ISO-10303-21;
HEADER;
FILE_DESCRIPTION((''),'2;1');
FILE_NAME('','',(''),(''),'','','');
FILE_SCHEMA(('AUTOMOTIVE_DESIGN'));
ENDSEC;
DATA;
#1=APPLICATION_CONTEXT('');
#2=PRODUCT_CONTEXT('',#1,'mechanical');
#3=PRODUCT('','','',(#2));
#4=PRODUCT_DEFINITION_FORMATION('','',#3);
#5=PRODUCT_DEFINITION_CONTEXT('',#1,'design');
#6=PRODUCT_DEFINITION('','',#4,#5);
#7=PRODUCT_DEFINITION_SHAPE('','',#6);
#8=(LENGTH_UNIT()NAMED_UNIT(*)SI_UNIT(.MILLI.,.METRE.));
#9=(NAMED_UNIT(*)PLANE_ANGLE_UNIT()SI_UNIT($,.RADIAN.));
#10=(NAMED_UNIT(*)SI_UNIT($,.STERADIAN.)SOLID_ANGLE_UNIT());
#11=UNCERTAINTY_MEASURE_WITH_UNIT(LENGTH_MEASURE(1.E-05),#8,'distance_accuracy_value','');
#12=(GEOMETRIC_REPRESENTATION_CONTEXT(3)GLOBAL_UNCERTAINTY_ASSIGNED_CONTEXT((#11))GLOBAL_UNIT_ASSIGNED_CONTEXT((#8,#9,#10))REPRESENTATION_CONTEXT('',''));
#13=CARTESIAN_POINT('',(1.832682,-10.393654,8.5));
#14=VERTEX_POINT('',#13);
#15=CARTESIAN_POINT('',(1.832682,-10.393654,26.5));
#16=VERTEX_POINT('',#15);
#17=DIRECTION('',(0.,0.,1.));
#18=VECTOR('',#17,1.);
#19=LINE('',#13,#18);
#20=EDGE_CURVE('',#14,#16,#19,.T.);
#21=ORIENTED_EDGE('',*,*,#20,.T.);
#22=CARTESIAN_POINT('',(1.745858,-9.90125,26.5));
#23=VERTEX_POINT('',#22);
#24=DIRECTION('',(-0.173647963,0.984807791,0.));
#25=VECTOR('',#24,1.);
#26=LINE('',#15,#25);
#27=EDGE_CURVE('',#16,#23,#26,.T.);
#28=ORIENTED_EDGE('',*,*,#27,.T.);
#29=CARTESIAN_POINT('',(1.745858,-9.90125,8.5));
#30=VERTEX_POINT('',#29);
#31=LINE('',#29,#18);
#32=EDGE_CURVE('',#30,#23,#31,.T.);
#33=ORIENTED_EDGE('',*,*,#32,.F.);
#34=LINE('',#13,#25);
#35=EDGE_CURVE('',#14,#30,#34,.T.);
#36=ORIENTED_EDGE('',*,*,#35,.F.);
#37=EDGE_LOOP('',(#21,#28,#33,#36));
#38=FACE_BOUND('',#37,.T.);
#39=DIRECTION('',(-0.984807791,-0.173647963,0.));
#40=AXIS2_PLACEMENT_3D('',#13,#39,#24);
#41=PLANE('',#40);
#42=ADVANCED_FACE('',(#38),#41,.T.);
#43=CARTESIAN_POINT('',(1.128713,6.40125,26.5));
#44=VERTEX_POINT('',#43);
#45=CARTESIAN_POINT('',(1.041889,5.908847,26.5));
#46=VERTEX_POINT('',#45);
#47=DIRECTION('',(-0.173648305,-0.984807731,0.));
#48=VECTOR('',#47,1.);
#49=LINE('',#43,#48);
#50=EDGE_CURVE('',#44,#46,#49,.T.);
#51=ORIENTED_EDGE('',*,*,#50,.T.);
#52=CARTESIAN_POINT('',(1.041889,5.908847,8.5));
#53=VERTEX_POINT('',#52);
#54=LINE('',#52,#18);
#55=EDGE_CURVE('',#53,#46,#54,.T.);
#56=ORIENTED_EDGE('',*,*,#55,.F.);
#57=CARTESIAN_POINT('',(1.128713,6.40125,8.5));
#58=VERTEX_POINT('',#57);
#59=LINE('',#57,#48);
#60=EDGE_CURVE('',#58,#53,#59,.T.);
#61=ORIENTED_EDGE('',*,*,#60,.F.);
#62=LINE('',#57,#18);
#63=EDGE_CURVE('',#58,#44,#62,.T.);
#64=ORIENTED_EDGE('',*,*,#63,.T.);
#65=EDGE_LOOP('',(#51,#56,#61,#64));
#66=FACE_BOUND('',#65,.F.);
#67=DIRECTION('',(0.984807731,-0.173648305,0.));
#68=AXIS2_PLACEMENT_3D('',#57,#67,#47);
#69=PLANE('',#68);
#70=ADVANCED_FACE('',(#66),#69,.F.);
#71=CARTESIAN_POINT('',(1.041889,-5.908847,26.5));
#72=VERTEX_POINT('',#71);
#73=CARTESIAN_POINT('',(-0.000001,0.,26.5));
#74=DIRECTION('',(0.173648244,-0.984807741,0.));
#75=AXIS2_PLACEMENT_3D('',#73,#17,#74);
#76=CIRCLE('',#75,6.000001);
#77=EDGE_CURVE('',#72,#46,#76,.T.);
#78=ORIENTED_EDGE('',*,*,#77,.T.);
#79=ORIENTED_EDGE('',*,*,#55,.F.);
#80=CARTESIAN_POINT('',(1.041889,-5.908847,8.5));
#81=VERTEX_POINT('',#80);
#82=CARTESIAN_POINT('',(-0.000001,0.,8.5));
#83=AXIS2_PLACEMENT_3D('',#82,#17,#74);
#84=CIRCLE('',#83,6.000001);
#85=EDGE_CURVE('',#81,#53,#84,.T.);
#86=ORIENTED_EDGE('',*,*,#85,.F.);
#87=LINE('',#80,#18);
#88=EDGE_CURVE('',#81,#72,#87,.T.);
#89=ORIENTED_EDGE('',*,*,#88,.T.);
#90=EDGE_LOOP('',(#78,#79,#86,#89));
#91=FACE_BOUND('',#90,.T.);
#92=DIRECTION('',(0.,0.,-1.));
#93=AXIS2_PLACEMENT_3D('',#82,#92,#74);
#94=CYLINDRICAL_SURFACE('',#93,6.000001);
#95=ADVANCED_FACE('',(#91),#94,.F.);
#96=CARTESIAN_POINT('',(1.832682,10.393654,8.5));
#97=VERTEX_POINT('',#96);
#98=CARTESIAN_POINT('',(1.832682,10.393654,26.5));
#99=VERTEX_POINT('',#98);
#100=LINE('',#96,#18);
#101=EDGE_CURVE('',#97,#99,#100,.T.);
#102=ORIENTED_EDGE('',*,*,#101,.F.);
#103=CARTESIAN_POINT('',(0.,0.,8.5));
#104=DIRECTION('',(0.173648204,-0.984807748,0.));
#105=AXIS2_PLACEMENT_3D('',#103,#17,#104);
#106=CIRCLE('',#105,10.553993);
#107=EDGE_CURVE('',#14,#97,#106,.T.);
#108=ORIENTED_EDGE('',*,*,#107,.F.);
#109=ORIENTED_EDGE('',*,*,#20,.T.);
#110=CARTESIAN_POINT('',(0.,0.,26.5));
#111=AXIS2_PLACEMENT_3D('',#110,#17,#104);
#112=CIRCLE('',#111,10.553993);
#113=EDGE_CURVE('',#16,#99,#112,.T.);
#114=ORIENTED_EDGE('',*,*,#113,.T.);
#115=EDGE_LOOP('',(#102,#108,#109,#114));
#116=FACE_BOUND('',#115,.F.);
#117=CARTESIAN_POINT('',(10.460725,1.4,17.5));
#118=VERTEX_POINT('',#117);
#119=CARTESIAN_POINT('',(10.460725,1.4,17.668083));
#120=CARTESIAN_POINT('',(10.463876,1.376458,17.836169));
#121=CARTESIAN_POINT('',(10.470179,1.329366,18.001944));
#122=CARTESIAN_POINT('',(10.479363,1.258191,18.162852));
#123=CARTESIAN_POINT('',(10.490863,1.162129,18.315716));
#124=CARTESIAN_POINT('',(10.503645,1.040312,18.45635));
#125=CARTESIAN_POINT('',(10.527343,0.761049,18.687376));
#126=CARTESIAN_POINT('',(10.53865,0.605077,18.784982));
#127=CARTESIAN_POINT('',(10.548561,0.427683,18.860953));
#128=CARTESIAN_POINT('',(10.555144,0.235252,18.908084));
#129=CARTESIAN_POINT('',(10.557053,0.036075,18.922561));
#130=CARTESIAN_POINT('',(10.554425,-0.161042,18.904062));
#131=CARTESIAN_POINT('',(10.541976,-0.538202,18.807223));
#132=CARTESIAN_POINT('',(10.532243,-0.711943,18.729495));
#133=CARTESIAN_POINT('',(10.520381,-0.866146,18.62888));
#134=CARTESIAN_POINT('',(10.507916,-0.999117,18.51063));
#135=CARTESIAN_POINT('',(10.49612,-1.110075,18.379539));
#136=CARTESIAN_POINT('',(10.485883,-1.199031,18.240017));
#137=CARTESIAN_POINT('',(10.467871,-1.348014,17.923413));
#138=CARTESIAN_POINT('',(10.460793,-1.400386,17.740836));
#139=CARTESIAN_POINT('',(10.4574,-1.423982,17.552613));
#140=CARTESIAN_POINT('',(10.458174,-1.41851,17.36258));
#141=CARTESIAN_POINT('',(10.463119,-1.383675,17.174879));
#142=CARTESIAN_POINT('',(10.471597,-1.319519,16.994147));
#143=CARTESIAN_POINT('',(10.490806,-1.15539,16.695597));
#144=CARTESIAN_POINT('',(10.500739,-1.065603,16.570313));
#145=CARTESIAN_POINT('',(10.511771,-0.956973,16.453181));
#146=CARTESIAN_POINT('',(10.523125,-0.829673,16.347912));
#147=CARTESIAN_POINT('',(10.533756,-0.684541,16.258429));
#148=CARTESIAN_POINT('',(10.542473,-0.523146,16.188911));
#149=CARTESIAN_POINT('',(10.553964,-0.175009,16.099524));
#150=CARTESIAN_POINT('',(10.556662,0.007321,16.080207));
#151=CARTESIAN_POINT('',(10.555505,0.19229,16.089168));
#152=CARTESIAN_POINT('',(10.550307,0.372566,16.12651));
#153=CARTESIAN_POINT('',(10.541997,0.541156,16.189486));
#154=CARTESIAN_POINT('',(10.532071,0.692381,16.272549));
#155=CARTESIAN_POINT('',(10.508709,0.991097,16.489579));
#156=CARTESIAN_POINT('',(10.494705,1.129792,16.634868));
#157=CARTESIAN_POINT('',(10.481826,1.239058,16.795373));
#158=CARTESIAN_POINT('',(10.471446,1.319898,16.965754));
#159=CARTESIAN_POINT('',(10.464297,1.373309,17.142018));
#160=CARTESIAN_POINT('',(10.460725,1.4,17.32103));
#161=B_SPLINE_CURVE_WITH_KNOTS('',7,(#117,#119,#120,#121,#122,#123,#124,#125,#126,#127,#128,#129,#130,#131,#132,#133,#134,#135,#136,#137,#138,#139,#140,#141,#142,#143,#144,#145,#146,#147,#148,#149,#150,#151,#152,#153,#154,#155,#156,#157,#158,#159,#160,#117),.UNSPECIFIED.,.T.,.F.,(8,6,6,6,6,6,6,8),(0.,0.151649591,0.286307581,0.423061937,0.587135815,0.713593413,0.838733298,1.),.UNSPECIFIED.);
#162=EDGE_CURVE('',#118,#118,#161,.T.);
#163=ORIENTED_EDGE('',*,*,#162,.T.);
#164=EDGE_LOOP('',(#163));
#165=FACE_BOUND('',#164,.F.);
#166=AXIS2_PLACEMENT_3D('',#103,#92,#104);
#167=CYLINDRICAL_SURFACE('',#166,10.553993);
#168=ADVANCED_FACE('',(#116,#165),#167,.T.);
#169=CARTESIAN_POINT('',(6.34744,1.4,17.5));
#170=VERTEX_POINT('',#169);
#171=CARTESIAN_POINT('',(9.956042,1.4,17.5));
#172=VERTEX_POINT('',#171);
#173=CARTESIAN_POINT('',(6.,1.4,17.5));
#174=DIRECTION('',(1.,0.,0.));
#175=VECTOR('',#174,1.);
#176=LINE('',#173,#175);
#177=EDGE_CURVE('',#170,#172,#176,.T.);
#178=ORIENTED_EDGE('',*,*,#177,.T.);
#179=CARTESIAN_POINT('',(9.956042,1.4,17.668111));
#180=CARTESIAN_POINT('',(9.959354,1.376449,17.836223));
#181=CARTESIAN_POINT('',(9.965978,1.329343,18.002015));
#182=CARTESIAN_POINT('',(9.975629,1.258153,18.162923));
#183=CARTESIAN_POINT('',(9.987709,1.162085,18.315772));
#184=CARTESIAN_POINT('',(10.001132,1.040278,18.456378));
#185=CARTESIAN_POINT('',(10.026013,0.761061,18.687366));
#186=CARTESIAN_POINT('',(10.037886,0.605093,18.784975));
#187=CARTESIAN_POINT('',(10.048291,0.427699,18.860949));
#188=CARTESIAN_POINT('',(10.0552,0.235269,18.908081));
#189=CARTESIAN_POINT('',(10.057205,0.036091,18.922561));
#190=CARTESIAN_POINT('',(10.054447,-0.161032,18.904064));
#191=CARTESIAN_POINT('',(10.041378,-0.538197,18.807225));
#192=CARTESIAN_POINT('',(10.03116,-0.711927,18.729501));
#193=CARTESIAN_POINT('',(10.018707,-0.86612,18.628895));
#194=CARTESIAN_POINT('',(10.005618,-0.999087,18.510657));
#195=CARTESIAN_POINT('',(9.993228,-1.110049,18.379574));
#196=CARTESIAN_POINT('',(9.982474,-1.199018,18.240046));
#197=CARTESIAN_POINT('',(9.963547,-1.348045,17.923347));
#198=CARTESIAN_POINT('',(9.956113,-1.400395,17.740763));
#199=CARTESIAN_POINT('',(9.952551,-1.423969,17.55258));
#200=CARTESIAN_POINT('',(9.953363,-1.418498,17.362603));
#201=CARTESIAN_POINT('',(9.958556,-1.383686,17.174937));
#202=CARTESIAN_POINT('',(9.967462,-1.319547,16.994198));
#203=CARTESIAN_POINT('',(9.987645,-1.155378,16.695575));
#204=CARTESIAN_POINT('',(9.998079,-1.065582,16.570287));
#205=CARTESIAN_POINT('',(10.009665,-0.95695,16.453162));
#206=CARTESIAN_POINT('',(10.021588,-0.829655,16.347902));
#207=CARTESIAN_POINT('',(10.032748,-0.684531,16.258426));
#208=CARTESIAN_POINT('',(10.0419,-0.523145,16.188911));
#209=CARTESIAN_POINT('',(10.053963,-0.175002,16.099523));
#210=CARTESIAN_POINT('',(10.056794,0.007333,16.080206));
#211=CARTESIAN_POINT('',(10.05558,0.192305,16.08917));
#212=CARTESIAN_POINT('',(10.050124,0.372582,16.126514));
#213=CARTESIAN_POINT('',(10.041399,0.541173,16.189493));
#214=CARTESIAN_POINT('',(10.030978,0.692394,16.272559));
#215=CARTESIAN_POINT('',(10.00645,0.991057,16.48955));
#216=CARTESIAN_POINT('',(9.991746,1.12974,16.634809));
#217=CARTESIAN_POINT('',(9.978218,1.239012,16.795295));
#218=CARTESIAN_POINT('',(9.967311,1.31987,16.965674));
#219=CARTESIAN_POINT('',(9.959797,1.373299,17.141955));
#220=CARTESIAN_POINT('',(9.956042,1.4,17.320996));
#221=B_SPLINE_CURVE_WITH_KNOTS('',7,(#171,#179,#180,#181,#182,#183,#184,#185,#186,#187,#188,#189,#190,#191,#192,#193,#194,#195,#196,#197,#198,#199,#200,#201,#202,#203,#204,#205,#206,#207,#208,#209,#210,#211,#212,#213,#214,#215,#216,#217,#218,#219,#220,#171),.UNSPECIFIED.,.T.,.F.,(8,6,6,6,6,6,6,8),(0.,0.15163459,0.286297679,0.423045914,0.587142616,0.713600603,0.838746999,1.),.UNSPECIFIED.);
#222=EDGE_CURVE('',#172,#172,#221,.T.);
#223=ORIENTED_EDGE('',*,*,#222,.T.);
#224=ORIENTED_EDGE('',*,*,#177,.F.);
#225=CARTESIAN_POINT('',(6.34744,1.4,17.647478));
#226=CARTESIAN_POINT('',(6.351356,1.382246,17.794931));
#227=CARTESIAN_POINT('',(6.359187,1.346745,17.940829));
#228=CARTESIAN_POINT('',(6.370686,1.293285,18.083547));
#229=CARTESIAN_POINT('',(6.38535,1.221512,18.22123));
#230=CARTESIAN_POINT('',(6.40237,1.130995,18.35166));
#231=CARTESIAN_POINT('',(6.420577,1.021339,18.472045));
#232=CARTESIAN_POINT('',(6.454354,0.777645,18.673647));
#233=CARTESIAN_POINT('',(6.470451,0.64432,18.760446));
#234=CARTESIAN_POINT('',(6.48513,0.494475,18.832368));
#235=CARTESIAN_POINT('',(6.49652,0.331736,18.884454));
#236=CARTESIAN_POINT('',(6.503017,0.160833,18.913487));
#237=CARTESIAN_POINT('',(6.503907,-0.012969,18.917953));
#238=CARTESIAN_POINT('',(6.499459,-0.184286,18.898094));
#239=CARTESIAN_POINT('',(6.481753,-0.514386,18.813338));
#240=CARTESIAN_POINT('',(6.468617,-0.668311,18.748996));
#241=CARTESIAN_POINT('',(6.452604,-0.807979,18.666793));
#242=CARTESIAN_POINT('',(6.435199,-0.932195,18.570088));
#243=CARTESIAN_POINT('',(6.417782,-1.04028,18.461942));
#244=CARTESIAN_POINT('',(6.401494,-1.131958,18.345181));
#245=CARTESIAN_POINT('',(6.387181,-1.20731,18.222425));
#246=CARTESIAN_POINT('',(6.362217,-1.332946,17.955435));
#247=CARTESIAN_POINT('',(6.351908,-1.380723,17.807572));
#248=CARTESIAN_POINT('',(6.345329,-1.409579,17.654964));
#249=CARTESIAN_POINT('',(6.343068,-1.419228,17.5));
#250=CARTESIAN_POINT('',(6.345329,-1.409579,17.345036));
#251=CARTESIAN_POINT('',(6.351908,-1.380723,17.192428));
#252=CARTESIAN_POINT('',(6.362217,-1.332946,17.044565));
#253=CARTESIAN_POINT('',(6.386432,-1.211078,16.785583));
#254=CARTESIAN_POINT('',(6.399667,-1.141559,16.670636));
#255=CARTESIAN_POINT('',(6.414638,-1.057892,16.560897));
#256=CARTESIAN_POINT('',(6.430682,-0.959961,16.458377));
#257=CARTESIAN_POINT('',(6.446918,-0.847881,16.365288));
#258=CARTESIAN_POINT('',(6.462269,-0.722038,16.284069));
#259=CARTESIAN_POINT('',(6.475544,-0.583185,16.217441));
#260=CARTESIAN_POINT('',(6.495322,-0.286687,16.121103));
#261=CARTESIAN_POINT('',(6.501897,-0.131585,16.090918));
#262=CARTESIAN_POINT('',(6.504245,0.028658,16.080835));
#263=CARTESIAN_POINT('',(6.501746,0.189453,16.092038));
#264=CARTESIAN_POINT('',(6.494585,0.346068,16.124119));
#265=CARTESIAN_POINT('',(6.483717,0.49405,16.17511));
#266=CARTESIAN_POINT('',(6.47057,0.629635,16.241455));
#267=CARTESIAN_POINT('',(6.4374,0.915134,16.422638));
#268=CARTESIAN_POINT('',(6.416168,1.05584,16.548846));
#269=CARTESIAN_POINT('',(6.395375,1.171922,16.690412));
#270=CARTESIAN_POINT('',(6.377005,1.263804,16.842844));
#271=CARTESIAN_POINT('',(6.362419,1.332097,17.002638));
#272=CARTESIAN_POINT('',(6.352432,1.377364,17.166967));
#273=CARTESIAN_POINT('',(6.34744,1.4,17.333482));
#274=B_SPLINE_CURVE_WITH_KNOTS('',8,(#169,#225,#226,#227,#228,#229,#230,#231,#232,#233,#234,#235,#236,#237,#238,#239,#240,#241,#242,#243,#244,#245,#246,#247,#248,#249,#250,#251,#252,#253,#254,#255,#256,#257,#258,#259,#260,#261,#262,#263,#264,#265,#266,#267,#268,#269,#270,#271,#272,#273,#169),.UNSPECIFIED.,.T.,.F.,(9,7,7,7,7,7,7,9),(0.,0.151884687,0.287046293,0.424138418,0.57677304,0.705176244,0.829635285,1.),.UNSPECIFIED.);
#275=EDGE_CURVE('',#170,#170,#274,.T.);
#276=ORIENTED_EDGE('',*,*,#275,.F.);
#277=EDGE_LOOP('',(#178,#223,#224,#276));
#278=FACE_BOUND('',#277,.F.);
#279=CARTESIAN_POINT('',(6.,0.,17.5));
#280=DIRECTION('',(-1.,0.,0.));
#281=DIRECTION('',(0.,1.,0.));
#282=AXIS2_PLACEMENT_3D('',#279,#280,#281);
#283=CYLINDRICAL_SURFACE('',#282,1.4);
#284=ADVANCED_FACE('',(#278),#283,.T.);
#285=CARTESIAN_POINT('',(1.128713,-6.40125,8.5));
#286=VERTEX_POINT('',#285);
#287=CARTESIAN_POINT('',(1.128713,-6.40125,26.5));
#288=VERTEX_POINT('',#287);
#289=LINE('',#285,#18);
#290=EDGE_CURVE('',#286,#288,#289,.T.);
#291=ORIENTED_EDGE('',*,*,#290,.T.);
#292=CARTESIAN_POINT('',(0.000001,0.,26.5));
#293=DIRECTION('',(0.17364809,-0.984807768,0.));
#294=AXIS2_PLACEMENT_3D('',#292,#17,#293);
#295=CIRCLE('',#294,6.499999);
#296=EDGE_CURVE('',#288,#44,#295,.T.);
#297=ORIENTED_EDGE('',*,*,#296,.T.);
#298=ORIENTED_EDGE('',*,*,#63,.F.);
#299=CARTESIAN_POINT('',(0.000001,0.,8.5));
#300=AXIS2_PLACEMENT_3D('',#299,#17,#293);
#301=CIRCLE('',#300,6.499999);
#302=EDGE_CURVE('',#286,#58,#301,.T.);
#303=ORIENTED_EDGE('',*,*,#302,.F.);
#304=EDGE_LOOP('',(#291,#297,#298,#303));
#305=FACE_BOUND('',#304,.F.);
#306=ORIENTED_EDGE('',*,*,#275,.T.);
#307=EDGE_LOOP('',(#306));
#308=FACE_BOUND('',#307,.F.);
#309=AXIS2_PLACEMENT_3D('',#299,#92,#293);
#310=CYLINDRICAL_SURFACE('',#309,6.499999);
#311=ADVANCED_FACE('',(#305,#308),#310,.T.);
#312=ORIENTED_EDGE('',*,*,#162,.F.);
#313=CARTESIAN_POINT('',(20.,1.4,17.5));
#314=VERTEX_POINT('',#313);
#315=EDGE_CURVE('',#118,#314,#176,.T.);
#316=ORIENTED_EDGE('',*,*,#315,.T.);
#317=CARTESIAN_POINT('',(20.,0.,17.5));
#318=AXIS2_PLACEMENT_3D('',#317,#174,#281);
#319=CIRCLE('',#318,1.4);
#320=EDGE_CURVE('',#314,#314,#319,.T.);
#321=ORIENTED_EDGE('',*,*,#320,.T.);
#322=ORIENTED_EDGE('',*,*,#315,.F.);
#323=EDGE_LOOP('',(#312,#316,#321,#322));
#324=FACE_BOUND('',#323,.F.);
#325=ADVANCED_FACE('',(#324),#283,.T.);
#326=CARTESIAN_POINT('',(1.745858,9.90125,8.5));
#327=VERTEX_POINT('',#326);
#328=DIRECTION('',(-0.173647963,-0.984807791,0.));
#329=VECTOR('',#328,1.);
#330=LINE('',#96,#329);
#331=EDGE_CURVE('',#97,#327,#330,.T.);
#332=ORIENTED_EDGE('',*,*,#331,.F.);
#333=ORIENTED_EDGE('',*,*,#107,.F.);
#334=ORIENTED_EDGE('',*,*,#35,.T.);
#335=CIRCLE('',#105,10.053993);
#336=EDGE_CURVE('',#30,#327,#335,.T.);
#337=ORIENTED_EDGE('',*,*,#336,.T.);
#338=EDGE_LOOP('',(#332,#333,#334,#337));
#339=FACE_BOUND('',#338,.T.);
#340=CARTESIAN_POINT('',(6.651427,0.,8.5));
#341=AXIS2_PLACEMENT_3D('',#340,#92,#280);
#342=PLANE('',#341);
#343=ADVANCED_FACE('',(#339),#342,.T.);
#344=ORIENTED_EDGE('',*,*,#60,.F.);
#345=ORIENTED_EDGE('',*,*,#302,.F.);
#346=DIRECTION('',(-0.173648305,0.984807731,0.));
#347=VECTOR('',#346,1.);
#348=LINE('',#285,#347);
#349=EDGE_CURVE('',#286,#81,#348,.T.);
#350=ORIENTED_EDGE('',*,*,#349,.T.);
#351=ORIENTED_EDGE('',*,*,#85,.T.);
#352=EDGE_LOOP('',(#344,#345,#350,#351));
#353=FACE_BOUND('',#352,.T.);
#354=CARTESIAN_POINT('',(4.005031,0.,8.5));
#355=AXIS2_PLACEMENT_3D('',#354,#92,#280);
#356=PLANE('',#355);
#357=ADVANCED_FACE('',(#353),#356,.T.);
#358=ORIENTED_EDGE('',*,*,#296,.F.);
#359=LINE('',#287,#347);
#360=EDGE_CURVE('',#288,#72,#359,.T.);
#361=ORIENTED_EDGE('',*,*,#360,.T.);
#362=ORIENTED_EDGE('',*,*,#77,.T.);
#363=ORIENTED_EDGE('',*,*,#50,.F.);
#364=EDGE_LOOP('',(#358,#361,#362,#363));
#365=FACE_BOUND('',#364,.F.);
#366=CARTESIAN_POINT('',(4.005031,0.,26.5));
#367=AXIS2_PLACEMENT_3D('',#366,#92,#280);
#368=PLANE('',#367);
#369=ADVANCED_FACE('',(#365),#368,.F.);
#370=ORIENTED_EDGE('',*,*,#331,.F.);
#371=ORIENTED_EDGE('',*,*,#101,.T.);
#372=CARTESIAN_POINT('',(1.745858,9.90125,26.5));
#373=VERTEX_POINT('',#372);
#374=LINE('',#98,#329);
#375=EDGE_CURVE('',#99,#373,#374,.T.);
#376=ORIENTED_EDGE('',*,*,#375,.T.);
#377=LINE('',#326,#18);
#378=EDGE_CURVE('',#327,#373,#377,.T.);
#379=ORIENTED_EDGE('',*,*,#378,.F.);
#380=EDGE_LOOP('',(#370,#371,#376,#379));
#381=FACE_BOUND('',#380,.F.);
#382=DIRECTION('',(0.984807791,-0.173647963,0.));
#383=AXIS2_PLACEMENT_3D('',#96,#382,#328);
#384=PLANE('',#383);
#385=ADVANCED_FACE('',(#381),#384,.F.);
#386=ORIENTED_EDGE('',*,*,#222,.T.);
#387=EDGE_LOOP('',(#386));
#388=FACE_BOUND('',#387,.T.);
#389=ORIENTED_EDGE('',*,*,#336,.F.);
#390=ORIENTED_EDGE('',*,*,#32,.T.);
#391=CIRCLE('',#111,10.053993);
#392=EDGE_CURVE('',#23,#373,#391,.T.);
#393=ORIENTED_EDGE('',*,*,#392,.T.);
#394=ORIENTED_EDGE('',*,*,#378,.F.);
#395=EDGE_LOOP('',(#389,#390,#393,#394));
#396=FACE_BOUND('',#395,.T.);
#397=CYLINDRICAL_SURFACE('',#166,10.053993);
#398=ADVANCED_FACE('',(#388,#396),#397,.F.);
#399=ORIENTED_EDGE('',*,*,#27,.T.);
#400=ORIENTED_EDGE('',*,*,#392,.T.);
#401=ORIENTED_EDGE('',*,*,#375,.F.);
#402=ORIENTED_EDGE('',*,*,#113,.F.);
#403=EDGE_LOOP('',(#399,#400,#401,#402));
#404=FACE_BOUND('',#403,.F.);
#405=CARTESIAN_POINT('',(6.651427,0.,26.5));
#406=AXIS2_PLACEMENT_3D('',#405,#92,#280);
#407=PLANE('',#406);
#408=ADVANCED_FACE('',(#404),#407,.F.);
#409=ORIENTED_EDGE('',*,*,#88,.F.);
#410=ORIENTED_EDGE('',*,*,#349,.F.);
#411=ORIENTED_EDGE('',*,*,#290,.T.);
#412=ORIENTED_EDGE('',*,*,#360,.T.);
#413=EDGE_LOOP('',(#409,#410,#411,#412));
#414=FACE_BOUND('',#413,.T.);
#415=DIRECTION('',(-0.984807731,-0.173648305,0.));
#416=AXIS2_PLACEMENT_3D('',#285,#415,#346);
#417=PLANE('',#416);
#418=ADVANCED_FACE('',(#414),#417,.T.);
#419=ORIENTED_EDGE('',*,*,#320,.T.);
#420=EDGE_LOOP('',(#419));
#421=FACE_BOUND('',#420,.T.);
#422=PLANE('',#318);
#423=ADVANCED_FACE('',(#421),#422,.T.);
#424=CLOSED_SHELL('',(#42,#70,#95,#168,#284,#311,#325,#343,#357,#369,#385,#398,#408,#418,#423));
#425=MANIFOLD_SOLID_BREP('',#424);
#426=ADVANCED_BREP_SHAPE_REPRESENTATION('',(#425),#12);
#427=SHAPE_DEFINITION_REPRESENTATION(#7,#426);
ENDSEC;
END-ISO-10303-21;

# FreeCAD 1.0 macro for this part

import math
import FreeCAD as App
import Part
import Sketcher
from FreeCAD import Vector
Q = App.Units.Quantity

doc = App.newDocument("Part")
body = doc.addObject("PartDesign::Body", "Body")

# Sketch on XY plane
sketch1 = body.newObject("Sketcher::SketchObject", "Sketch")
sketch1.AttachmentSupport = (doc.getObject("XY_Plane"), [""])
sketch1.MapMode = "FlatFace"
sketch1.AttachmentOffset = App.Placement(Vector(0, 0, 8.5), App.Rotation())
sketch1.addGeometry([
    Part.ArcOfCircle(Part.Circle(Vector(0, 0, 0), Vector(0, 0, 1), 6), math.radians(-80), math.radians(80)),
    Part.LineSegment(Vector(1.04, -5.91, 0), Vector(1.13, -6.4, 0)),
    Part.ArcOfCircle(Part.Circle(Vector(0, 0, 0), Vector(0, 0, 1), 6.5), math.radians(-80), math.radians(80)),
    Part.LineSegment(Vector(1.13, 6.4, 0), Vector(1.04, 5.91, 0)),
], False)
sketch1.addConstraint([
    Sketcher.Constraint("Coincident", 0, 1, 1, 1),
    Sketcher.Constraint("Coincident", 1, 2, 2, 1),
    Sketcher.Constraint("Coincident", 2, 2, 3, 1),
    Sketcher.Constraint("Coincident", 3, 2, 0, 2),
    Sketcher.Constraint("Coincident", 0, 3, -1, 1),
    Sketcher.Constraint("Coincident", 2, 3, -1, 1),
    Sketcher.Constraint("Vertical", 1, 2, 2, 2),
    Sketcher.Constraint("Vertical", 0, 1, 3, 2),
    Sketcher.Constraint("Radius", 0, 6.000001),
    Sketcher.Constraint("Radius", 2, 6.499999),
    Sketcher.Constraint("Angle", 1, Q("-79.999993 deg")),
    Sketcher.Constraint("DistanceY", 1, 2, 2, 2, 12.8025),
])
pad1 = body.newObject("PartDesign::Pad", "Pad")
pad1.Profile = sketch1
pad1.Length = 18

# Sketch on YZ plane
sketch2 = body.newObject("Sketcher::SketchObject", "Sketch001")
sketch2.AttachmentSupport = (doc.getObject("YZ_Plane"), [""])
sketch2.MapMode = "FlatFace"
sketch2.AttachmentOffset = App.Placement(Vector(0, 0, 6), App.Rotation())
sketch2.addGeometry(Part.Circle(Vector(0, 17.5, 0), Vector(0, 0, 1), 1.4), False)
sketch2.addConstraint([
    Sketcher.Constraint("PointOnObject", 0, 3, -2),
    Sketcher.Constraint("Diameter", 0, 2.8),
    Sketcher.Constraint("DistanceY", -1, 1, 0, 3, 17.5),
])
pad2 = body.newObject("PartDesign::Pad", "Pad001")
pad2.Profile = sketch2
pad2.Length = 14

# Sketch on XY plane
sketch3 = body.newObject("Sketcher::SketchObject", "Sketch002")
sketch3.AttachmentSupport = (doc.getObject("XY_Plane"), [""])
sketch3.MapMode = "FlatFace"
sketch3.AttachmentOffset = App.Placement(Vector(0, 0, 8.5), App.Rotation())
sketch3.addGeometry([
    Part.ArcOfCircle(Part.Circle(Vector(0, 0, 0), Vector(0, 0, 1), 10.1), math.radians(-80), math.radians(80)),
    Part.LineSegment(Vector(1.7, -9.9, 0), Vector(1.8, -10.4, 0)),
    Part.ArcOfCircle(Part.Circle(Vector(0, 0, 0), Vector(0, 0, 1), 10.6), math.radians(-80), math.radians(80)),
    Part.LineSegment(Vector(1.8, 10.4, 0), Vector(1.7, 9.9, 0)),
], False)
sketch3.addConstraint([
    Sketcher.Constraint("Coincident", 0, 1, 1, 1),
    Sketcher.Constraint("Coincident", 1, 2, 2, 1),
    Sketcher.Constraint("Coincident", 2, 2, 3, 1),
    Sketcher.Constraint("Coincident", 3, 2, 0, 2),
    Sketcher.Constraint("Coincident", 0, 3, -1, 1),
    Sketcher.Constraint("Coincident", 2, 3, -1, 1),
    Sketcher.Constraint("Vertical", 1, 2, 2, 2),
    Sketcher.Constraint("Vertical", 0, 1, 3, 2),
    Sketcher.Constraint("Angle", 1, Q("-80.000012 deg")),
    Sketcher.Constraint("Distance", 1, 0.5),
    Sketcher.Constraint("Radius", 0, 10.053993),
    Sketcher.Constraint("DistanceY", 0, 1, 3, 2, 19.8025),
])
pad3 = body.newObject("PartDesign::Pad", "Pad002")
pad3.Profile = sketch3
pad3.Length = 18

doc.recompute()
